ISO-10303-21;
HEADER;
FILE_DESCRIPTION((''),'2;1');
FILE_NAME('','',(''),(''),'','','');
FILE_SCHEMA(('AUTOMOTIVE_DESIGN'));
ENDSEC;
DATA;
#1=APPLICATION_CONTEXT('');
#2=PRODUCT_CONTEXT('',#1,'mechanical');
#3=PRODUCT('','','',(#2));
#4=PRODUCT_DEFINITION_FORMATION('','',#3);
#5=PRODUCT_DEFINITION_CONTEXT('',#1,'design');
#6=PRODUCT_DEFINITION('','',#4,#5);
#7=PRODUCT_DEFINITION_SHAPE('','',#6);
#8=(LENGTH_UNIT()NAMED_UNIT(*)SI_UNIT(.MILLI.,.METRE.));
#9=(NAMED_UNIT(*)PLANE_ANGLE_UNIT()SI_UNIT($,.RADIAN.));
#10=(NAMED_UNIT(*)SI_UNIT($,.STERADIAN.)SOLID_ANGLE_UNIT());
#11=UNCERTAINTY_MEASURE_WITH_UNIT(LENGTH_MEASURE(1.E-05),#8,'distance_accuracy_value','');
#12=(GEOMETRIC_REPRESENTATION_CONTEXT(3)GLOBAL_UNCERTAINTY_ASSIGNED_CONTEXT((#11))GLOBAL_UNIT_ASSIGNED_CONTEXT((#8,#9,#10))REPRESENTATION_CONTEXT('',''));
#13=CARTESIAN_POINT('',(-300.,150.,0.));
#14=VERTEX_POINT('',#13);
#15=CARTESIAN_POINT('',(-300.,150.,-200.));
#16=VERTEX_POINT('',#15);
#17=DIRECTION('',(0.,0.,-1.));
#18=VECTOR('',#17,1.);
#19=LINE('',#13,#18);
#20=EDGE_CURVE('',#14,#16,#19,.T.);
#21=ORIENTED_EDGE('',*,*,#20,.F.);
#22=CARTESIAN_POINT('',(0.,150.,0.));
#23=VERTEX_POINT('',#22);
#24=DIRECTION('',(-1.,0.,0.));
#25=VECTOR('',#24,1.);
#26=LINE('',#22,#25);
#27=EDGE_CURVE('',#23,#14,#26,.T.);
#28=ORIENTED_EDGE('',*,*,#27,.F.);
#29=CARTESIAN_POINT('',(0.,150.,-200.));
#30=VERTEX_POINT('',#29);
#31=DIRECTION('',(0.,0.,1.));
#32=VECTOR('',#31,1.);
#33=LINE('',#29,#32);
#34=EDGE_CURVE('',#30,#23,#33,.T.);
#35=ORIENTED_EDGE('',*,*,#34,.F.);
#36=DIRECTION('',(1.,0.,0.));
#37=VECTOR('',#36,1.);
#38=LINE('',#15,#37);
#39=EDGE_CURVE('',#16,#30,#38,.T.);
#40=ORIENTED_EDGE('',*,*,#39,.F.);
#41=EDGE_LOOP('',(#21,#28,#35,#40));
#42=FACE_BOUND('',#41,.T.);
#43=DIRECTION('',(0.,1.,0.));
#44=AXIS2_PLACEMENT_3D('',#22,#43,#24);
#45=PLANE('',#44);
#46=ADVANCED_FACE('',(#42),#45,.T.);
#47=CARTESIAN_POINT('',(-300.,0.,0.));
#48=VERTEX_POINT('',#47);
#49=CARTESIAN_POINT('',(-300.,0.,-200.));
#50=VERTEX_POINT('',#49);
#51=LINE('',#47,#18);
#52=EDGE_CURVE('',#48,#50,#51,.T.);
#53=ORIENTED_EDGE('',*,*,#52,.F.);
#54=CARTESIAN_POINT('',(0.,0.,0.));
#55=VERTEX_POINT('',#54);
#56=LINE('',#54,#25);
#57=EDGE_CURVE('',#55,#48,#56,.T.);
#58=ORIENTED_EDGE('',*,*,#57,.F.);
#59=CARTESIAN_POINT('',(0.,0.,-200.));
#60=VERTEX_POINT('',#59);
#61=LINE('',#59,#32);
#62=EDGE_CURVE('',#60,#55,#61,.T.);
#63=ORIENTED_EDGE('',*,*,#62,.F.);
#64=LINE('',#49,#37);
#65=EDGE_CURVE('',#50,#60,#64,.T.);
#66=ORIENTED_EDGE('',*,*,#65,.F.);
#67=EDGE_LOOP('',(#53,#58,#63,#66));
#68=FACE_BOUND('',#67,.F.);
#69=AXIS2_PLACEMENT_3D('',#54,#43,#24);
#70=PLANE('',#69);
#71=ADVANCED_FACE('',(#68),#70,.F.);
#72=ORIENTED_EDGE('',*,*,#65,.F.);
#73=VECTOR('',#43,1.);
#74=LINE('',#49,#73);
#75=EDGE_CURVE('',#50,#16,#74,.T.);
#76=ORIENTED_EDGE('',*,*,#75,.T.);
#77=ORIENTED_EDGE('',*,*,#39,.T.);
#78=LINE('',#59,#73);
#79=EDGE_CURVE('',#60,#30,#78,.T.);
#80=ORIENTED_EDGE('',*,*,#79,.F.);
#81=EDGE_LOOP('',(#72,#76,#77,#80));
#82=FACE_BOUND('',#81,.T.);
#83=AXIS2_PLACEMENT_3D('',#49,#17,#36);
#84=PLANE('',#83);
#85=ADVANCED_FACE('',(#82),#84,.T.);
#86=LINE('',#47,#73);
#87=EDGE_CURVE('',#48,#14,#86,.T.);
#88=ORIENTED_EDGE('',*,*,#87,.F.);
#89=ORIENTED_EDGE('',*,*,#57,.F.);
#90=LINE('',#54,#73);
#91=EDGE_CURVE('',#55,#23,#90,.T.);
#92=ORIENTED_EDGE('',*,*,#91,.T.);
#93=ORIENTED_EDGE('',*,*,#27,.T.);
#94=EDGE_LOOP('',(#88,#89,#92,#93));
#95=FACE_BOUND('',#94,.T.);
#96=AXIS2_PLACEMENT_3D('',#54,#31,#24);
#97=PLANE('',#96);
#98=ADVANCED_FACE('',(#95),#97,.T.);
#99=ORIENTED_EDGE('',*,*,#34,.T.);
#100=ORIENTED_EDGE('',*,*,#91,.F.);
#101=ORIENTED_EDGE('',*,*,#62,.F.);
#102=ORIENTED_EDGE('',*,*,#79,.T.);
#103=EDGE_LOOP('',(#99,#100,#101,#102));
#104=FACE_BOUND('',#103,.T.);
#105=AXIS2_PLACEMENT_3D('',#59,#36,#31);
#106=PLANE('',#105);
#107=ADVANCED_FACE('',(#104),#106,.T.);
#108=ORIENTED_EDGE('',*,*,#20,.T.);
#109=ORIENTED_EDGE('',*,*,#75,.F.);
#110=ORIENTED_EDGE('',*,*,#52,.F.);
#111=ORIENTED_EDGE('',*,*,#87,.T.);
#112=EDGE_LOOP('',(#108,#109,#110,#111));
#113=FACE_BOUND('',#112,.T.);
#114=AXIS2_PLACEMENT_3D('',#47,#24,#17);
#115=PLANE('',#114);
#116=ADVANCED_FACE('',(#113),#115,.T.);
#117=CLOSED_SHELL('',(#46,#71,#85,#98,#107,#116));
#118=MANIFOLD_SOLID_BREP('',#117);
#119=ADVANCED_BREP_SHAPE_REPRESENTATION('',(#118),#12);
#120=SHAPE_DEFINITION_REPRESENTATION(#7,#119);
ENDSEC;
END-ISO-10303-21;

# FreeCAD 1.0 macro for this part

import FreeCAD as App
import Part
import Sketcher

V = App.Vector

doc = App.newDocument("Part")
body = doc.addObject("PartDesign::Body", "Body")

# Sketch on XZ plane
sketch1 = body.newObject("Sketcher::SketchObject", "Sketch")
sketch1.AttachmentSupport = (doc.getObject("XZ_Plane"), [""])
sketch1.MapMode = "FlatFace"
sketch1.addGeometry([
    Part.LineSegment(V(-300, 0, 0), V(0, 0, 0)),
    Part.LineSegment(V(0, 0, 0), V(0, -200, 0)),
    Part.LineSegment(V(0, -200, 0), V(-300, -200, 0)),
    Part.LineSegment(V(-300, -200, 0), V(-300, 0, 0)),
], False)
sketch1.addConstraint([
    Sketcher.Constraint("Coincident", 0, 2, 1, 1),
    Sketcher.Constraint("Coincident", 1, 2, 2, 1),
    Sketcher.Constraint("Coincident", 2, 2, 3, 1),
    Sketcher.Constraint("Coincident", 3, 2, 0, 1),
    Sketcher.Constraint("Horizontal", 0),
    Sketcher.Constraint("Vertical", 1),
    Sketcher.Constraint("Horizontal", 2),
    Sketcher.Constraint("Vertical", 3),
    Sketcher.Constraint("Coincident", 0, 2, -1, 1),
    Sketcher.Constraint("DistanceX", 0, 1, 0, 2, 300.0),
    Sketcher.Constraint("DistanceY", 1, 2, 1, 1, 200.0),
])
pad1 = body.newObject("PartDesign::Pad", "Pad")
pad1.Profile = sketch1
pad1.Length = 150
pad1.Reversed = True

doc.recompute()
